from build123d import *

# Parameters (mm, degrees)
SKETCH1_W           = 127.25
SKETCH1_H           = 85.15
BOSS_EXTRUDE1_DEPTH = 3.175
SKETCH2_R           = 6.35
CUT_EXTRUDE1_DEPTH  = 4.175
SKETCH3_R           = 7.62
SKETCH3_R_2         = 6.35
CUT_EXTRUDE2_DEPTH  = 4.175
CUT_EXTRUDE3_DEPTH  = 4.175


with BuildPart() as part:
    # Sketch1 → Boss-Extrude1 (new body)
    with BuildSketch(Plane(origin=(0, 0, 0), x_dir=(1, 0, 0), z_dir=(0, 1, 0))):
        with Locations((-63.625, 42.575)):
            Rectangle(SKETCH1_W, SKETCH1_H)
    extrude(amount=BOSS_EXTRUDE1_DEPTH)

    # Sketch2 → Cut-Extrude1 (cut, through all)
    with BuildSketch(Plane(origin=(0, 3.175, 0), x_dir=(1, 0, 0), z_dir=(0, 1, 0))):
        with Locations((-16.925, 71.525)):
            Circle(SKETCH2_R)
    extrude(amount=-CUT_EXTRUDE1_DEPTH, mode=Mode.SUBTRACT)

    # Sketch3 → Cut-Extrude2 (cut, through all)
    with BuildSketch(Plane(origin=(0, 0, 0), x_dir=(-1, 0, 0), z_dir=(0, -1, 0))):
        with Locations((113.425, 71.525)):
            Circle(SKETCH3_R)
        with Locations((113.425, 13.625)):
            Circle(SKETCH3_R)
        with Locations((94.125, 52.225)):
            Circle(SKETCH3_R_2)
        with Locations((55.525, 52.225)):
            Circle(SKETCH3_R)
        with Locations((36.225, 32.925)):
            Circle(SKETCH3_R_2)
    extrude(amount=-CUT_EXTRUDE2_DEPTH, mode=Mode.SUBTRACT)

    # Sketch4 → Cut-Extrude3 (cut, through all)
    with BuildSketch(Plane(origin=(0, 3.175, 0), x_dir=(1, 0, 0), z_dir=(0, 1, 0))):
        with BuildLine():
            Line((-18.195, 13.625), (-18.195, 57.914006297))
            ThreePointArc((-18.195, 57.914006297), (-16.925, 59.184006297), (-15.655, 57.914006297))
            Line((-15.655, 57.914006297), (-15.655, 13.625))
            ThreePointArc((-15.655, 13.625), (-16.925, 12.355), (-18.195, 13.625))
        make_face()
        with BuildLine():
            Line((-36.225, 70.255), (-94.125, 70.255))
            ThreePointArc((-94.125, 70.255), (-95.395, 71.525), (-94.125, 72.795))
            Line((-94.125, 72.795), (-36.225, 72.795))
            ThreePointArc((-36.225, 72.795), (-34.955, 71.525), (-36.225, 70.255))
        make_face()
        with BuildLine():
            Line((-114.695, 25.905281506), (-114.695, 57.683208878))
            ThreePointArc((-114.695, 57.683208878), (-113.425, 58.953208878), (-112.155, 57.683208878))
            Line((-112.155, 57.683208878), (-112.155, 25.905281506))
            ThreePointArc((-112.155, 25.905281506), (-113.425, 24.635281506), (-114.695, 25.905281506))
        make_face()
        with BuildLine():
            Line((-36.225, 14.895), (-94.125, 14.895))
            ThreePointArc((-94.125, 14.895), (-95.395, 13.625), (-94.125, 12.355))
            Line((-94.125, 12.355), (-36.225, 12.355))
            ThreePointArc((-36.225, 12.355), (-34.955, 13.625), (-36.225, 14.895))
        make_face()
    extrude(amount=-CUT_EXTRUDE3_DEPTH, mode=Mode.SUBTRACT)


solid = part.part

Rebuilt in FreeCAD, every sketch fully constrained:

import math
import FreeCAD as App
import Part
import Sketcher

V = App.Vector
Q = App.Units.Quantity


def add_polygon(sketch, points):
    """Adds a closed chain of lines whose ends are joined by coincident constraints."""
    first, n = sketch.GeometryCount, len(points)
    for a, b in zip(points, points[1:] + points[:1]):
        sketch.addGeometry(Part.LineSegment(App.Vector(*a, 0), App.Vector(*b, 0)), False)
    for i in range(n):
        sketch.addConstraint(Sketcher.Constraint("Coincident", first + i, 2, first + (i + 1) % n, 1))

doc = App.newDocument("Part")
params = doc.addObject("Spreadsheet::Sheet", "Params")
for row, (alias, value) in enumerate([
    ("pad1_length", "0.125 in"),
    ("sketch2_diameter", "0.5 in"),
    ("sketch3_diameter", "0.6 in"),
    ("sketch3_diameter2", "0.5 in"),
    ("sketch4_radius", "0.05 in"),
], start=1):
    params.set(f"A{row}", alias)
    params.set(f"B{row}", "=" + value)
    params.setAlias(f"B{row}", alias)

body = doc.addObject("PartDesign::Body", "Body")

# Sketch on XZ plane
sketch1 = body.newObject("Sketcher::SketchObject", "Sketch")
sketch1.AttachmentSupport = (doc.getObject("XZ_Plane"), [""])
sketch1.MapMode = "FlatFace"
add_polygon(sketch1, [(-127, -85), (-127, 0), (0, 0), (0, -85)])  # lines 0-3
sketch1.addConstraint([
    Sketcher.Constraint("Vertical", 0),
    Sketcher.Constraint("Horizontal", 1),
    Sketcher.Constraint("Vertical", 2),
    Sketcher.Constraint("Horizontal", 3),
    Sketcher.Constraint("Coincident", 1, 2, -1, 1),
    Sketcher.Constraint("DistanceX", 1, 1, 1, 2, Q("127.25 mm")),
    Sketcher.Constraint("DistanceY", 0, 1, 0, 2, Q("85.15 mm")),
])
pad1 = body.newObject("PartDesign::Pad", "Pad")
pad1.Profile = sketch1
pad1.setExpression("Length", "Params.pad1_length")
pad1.Reversed = True

# Sketch on XZ plane
sketch2 = body.newObject("Sketcher::SketchObject", "Sketch001")
sketch2.AttachmentSupport = (doc.getObject("XZ_Plane"), [""])
sketch2.MapMode = "FlatFace"
sketch2.AttachmentOffset = App.Placement(V(0, 0, -0.125 * 25.4), App.Rotation())
sketch2.addGeometry(Part.Circle(V(-17, -72, 0), V(0, 0, 1), 6), False)
sketch2.addConstraint([
    Sketcher.Constraint("Diameter", 0, Q("0.5 in")),
    Sketcher.Constraint("DistanceX", 0, 3, -1, 1, Q("16.925 mm")),
    Sketcher.Constraint("DistanceY", 0, 3, -1, 1, Q("71.525 mm")),
])
sketch2.setExpression("Constraints[0]", "Params.sketch2_diameter")
pocket1 = body.newObject("PartDesign::Pocket", "Pocket")
pocket1.Profile = sketch2
pocket1.Type = "ThroughAll"
pocket1.Reversed = True

# Sketch on XZ plane
sketch3 = body.newObject("Sketcher::SketchObject", "Sketch002")
sketch3.AttachmentSupport = (doc.getObject("XZ_Plane"), [""])
sketch3.MapMode = "FlatFace"
sketch3.addGeometry([
    Part.Circle(V(-113, -72, 0), V(0, 0, 1), 8),  # 0
    Part.Circle(V(-113, -14, 0), V(0, 0, 1), 8),  # 1
    Part.Circle(V(-94, -52, 0), V(0, 0, 1), 6),  # 2
    Part.Circle(V(-56, -52, 0), V(0, 0, 1), 8),  # 3
    Part.Circle(V(-36, -33, 0), V(0, 0, 1), 6),  # 4
], False)
sketch3.addConstraint([
    Sketcher.Constraint("Equal", 0, 1),
    Sketcher.Constraint("Equal", 1, 3),
    Sketcher.Constraint("Equal", 2, 4),
    Sketcher.Constraint("Horizontal", 2, 3, 3, 3),
    Sketcher.Constraint("Vertical", 0, 3, 1, 3),
    Sketcher.Constraint("Diameter", 0, Q("0.6 in")),
    Sketcher.Constraint("Diameter", 2, Q("0.5 in")),
    Sketcher.Constraint("DistanceX", 0, 3, -1, 1, Q("113.425 mm")),
    Sketcher.Constraint("DistanceY", 0, 3, -1, 1, Q("71.525 mm")),
    Sketcher.Constraint("DistanceY", 1, 3, -1, 1, Q("13.625 mm")),
    Sketcher.Constraint("DistanceX", 2, 3, -1, 1, Q("94.125 mm")),
    Sketcher.Constraint("DistanceY", 2, 3, -1, 1, Q("52.225 mm")),
    Sketcher.Constraint("DistanceX", 3, 3, -1, 1, Q("55.525 mm")),
    Sketcher.Constraint("DistanceX", 4, 3, -1, 1, Q("36.225 mm")),
    Sketcher.Constraint("DistanceY", 4, 3, -1, 1, Q("32.925 mm")),
])
sketch3.setExpression("Constraints[5]", "Params.sketch3_diameter")
sketch3.setExpression("Constraints[6]", "Params.sketch3_diameter2")
pocket2 = body.newObject("PartDesign::Pocket", "Pocket001")
pocket2.Profile = sketch3
pocket2.Type = "ThroughAll"

# Sketch on XZ plane
sketch4 = body.newObject("Sketcher::SketchObject", "Sketch003")
sketch4.AttachmentSupport = (doc.getObject("XZ_Plane"), [""])
sketch4.MapMode = "FlatFace"
sketch4.AttachmentOffset = App.Placement(V(0, 0, -0.125 * 25.4), App.Rotation())
sketch4.addGeometry([
    Part.LineSegment(V(-18.2, -57.9, 0), V(-18.2, -13.6, 0)),  # 0
    Part.ArcOfCircle(Part.Circle(V(-16.9, -13.6, 0), V(0, 0, 1), 1.3), math.radians(0), math.radians(180)),  # 1
    Part.LineSegment(V(-15.7, -13.6, 0), V(-15.7, -57.9, 0)),  # 2
    Part.ArcOfCircle(Part.Circle(V(-16.9, -57.9, 0), V(0, 0, 1), 1.3), math.radians(180), math.radians(360)),  # 3
    Part.LineSegment(V(-94.1, -70.3, 0), V(-36.2, -70.3, 0)),  # 4
    Part.ArcOfCircle(Part.Circle(V(-36.2, -71.5, 0), V(0, 0, 1), 1.3), math.radians(-90), math.radians(90)),  # 5
    Part.LineSegment(V(-36.2, -72.8, 0), V(-94.1, -72.8, 0)),  # 6
    Part.ArcOfCircle(Part.Circle(V(-94.1, -71.5, 0), V(0, 0, 1), 1.3), math.radians(90), math.radians(270)),  # 7
    Part.LineSegment(V(-114.7, -57.7, 0), V(-114.7, -25.9, 0)),  # 8
    Part.ArcOfCircle(Part.Circle(V(-113.4, -25.9, 0), V(0, 0, 1), 1.3), math.radians(0), math.radians(180)),  # 9
    Part.LineSegment(V(-112.2, -25.9, 0), V(-112.2, -57.7, 0)),  # 10
    Part.ArcOfCircle(Part.Circle(V(-113.4, -57.7, 0), V(0, 0, 1), 1.3), math.radians(180), math.radians(360)),  # 11
    Part.LineSegment(V(-36.2, -14.9, 0), V(-94.1, -14.9, 0)),  # 12
    Part.ArcOfCircle(Part.Circle(V(-94.1, -13.6, 0), V(0, 0, 1), 1.3), math.radians(90), math.radians(270)),  # 13
    Part.LineSegment(V(-94.1, -12.4, 0), V(-36.2, -12.4, 0)),  # 14
    Part.ArcOfCircle(Part.Circle(V(-36.2, -13.6, 0), V(0, 0, 1), 1.3), math.radians(-90), math.radians(90)),  # 15
], False)
sketch4.addConstraint([
    Sketcher.Constraint("Tangent", 0, 2, 1, 2),
    Sketcher.Constraint("Tangent", 1, 1, 2, 1),
    Sketcher.Constraint("Tangent", 2, 2, 3, 2),
    Sketcher.Constraint("Tangent", 3, 1, 0, 1),
    Sketcher.Constraint("Tangent", 4, 2, 5, 2),
    Sketcher.Constraint("Tangent", 5, 1, 6, 1),
    Sketcher.Constraint("Tangent", 6, 2, 7, 2),
    Sketcher.Constraint("Tangent", 7, 1, 4, 1),
    Sketcher.Constraint("Tangent", 8, 2, 9, 2),
    Sketcher.Constraint("Tangent", 9, 1, 10, 1),
    Sketcher.Constraint("Tangent", 10, 2, 11, 2),
    Sketcher.Constraint("Tangent", 11, 1, 8, 1),
    Sketcher.Constraint("Tangent", 12, 2, 13, 2),
    Sketcher.Constraint("Tangent", 13, 1, 14, 1),
    Sketcher.Constraint("Tangent", 14, 2, 15, 2),
    Sketcher.Constraint("Tangent", 15, 1, 12, 1),
    Sketcher.Constraint("Vertical", 0),
    Sketcher.Constraint("Vertical", 2),
    Sketcher.Constraint("Horizontal", 4),
    Sketcher.Constraint("Horizontal", 6),
    Sketcher.Constraint("Vertical", 8),
    Sketcher.Constraint("Vertical", 10),
    Sketcher.Constraint("Horizontal", 12),
    Sketcher.Constraint("Horizontal", 14),
    Sketcher.Constraint("Equal", 3, 5),
    Sketcher.Constraint("Equal", 7, 9),
    Sketcher.Constraint("Equal", 11, 13),
    Sketcher.Constraint("Horizontal", 1, 3, 13, 3),
    Sketcher.Constraint("Vertical", 7, 3, 13, 3),
    Sketcher.Constraint("Vertical", 5, 3, 15, 3),
    Sketcher.Constraint("Radius", 1, Q("0.05 in")),
    Sketcher.Constraint("DistanceX", 4, 1, 4, 2, Q("57.9 mm")),
    Sketcher.Constraint("DistanceX", 1, 3, -1, 1, Q("16.925 mm")),
    Sketcher.Constraint("DistanceY", 1, 3, -1, 1, Q("13.625 mm")),
    Sketcher.Constraint("DistanceX", 5, 3, -1, 1, Q("36.225 mm")),
    Sketcher.Constraint("DistanceY", 5, 3, -1, 1, Q("71.525 mm")),
    Sketcher.Constraint("DistanceX", 9, 3, -1, 1, Q("113.425 mm")),
    Sketcher.Constraint("DistanceY", 0, 1, 0, 2, Q("44.289006 mm")),
    Sketcher.Constraint("DistanceY", 8, 1, 8, 2, Q("31.777927 mm")),
    Sketcher.Constraint("DistanceY", 9, 3, -1, 1, Q("25.905282 mm")),
])
sketch4.setExpression("Constraints[30]", "Params.sketch4_radius")
pocket3 = body.newObject("PartDesign::Pocket", "Pocket002")
pocket3.Profile = sketch4
pocket3.Type = "ThroughAll"
pocket3.Reversed = True

doc.recompute()
